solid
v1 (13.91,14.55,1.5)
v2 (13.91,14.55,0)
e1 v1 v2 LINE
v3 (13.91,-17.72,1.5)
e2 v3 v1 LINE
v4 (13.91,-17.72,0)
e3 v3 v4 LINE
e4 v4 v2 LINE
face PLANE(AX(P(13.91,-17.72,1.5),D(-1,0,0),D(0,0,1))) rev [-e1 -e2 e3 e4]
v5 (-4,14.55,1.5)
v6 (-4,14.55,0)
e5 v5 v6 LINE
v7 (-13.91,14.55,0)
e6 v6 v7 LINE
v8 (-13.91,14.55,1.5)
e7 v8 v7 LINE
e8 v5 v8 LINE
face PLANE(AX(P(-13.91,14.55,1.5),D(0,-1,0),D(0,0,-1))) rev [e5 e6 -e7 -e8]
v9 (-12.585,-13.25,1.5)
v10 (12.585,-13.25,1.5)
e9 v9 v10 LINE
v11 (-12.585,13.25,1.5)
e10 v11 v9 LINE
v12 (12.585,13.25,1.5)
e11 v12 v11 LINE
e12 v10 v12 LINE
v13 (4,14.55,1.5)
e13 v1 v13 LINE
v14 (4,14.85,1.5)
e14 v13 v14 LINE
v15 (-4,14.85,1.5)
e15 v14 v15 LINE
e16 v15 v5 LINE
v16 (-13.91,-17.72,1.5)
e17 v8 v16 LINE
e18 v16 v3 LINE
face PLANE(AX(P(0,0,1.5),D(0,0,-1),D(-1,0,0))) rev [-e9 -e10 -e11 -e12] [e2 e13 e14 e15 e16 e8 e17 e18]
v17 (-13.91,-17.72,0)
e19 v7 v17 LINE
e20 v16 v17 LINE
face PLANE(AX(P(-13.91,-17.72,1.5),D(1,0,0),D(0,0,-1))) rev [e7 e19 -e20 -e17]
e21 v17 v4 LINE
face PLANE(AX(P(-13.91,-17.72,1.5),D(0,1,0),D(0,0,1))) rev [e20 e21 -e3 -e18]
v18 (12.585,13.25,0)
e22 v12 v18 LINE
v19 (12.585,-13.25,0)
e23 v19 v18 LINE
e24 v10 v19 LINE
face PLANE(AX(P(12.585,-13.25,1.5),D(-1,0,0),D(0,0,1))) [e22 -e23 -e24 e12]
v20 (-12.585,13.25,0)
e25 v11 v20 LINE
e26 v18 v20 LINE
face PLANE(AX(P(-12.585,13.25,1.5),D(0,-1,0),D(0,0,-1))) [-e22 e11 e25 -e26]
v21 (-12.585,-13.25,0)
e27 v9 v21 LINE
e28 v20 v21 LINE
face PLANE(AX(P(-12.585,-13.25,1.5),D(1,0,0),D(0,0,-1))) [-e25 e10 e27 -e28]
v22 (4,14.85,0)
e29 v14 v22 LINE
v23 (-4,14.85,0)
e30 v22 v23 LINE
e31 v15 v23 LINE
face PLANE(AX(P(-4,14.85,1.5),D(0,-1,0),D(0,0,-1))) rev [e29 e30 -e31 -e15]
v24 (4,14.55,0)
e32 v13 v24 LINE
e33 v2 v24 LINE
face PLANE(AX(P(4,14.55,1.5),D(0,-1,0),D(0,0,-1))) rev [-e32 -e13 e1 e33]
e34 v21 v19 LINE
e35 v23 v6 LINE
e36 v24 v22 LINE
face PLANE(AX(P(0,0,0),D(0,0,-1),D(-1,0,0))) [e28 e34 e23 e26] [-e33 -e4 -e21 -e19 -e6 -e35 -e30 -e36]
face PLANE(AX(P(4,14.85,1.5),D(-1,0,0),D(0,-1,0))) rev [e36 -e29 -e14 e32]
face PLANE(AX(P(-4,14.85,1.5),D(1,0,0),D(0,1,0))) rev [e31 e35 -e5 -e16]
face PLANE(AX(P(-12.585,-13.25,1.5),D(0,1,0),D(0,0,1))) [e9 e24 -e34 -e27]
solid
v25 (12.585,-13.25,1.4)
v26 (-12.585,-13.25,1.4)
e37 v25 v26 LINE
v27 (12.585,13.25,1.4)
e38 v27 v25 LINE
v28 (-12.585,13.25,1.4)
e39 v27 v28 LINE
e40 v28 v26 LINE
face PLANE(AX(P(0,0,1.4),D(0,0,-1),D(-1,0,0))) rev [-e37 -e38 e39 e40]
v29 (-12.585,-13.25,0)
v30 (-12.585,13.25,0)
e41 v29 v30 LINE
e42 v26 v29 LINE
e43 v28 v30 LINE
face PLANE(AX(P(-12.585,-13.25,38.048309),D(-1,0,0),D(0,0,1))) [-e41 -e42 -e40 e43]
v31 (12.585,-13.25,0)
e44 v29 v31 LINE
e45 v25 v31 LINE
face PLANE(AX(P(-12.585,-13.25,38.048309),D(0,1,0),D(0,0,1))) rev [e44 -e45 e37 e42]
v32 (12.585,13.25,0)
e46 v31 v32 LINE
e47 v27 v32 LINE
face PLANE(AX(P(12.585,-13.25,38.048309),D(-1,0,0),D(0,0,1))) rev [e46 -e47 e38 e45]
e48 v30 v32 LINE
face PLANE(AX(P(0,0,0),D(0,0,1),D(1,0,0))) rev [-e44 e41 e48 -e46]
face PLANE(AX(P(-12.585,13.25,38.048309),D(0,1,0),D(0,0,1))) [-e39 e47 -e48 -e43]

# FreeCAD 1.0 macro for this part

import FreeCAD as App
import Part
import Sketcher


def add_polygon(sketch, points):
    """Adds a closed chain of lines whose ends are joined by coincident constraints."""
    first, n = sketch.GeometryCount, len(points)
    for a, b in zip(points, points[1:] + points[:1]):
        sketch.addGeometry(Part.LineSegment(App.Vector(*a, 0), App.Vector(*b, 0)), False)
    for i in range(n):
        sketch.addConstraint(Sketcher.Constraint("Coincident", first + i, 2, first + (i + 1) % n, 1))

doc = App.newDocument("Part")
body = doc.addObject("PartDesign::Body", "Body")

# Sketch on XY plane
sketch1 = body.newObject("Sketcher::SketchObject", "Sketch")
sketch1.AttachmentSupport = (doc.getObject("XY_Plane"), [""])
sketch1.MapMode = "FlatFace"
add_polygon(sketch1, [(13.91, 14.55), (4, 14.55), (4, 14.85), (-4, 14.85), (-4, 14.55), (-13.91, 14.55), (-13.91, -17.72), (13.91, -17.72)])  # lines 0-7
add_polygon(sketch1, [(-12.59, -13.25), (-12.59, 13.25), (12.59, 13.25), (12.59, -13.25)])  # lines 8-11
sketch1.addConstraint(Sketcher.Constraint("Horizontal", 0))
sketch1.addConstraint(Sketcher.Constraint("Vertical", 1))
sketch1.addConstraint(Sketcher.Constraint("Horizontal", 2))
sketch1.addConstraint(Sketcher.Constraint("Vertical", 3))
sketch1.addConstraint(Sketcher.Constraint("Horizontal", 4))
sketch1.addConstraint(Sketcher.Constraint("Vertical", 5))
sketch1.addConstraint(Sketcher.Constraint("Horizontal", 6))
sketch1.addConstraint(Sketcher.Constraint("Vertical", 7))
sketch1.addConstraint(Sketcher.Constraint("Vertical", 8))
sketch1.addConstraint(Sketcher.Constraint("Horizontal", 9))
sketch1.addConstraint(Sketcher.Constraint("Vertical", 10))
sketch1.addConstraint(Sketcher.Constraint("Horizontal", 11))
sketch1.addConstraint(Sketcher.Constraint("Symmetric", 8, 2, 10, 2, -1, 1))
sketch1.addConstraint(Sketcher.Constraint("Symmetric", 0, 2, 3, 2, -2))
sketch1.addConstraint(Sketcher.Constraint("Equal", 0, 4))
sketch1.addConstraint(Sketcher.Constraint("DistanceX", 2, 2, 2, 1, 8.0))
sketch1.addConstraint(Sketcher.Constraint("DistanceY", 1, 1, 1, 2, 0.3))
sketch1.addConstraint(Sketcher.Constraint("DistanceY", 8, 1, 8, 2, 26.5))
sketch1.addConstraint(Sketcher.Constraint("DistanceX", 0, 2, 0, 1, 9.91))
sketch1.addConstraint(Sketcher.Constraint("DistanceX", 9, 1, 9, 2, 25.17))
sketch1.addConstraint(Sketcher.Constraint("DistanceY", 5, 2, 5, 1, 32.27))
sketch1.addConstraint(Sketcher.Constraint("DistanceY", 8, 2, 4, 2, 1.3))
pad1 = body.newObject("PartDesign::Pad", "Pad")
pad1.Profile = sketch1
pad1.Length = 1.5
body2 = doc.addObject("PartDesign::Body", "Body001")

# Sketch on XY plane
sketch2 = body2.newObject("Sketcher::SketchObject", "Sketch001")
sketch2.AttachmentSupport = (doc.getObject("XY_Plane001"), [""])
sketch2.MapMode = "FlatFace"
add_polygon(sketch2, [(-13, 13), (-13, -13), (13, -13), (13, 13)])  # lines 0-3
sketch2.addConstraint(Sketcher.Constraint("Vertical", 0))
sketch2.addConstraint(Sketcher.Constraint("Horizontal", 1))
sketch2.addConstraint(Sketcher.Constraint("Vertical", 2))
sketch2.addConstraint(Sketcher.Constraint("Horizontal", 3))
sketch2.addConstraint(Sketcher.Constraint("Symmetric", 0, 2, 2, 2, -1, 1))
sketch2.addConstraint(Sketcher.Constraint("DistanceY", 0, 2, 0, 1, 26.5))
sketch2.addConstraint(Sketcher.Constraint("DistanceX", 1, 1, 1, 2, 25.17))
pad2 = body2.newObject("PartDesign::Pad", "Pad001")
pad2.Profile = sketch2
pad2.Length = 1.4

doc.recompute()
